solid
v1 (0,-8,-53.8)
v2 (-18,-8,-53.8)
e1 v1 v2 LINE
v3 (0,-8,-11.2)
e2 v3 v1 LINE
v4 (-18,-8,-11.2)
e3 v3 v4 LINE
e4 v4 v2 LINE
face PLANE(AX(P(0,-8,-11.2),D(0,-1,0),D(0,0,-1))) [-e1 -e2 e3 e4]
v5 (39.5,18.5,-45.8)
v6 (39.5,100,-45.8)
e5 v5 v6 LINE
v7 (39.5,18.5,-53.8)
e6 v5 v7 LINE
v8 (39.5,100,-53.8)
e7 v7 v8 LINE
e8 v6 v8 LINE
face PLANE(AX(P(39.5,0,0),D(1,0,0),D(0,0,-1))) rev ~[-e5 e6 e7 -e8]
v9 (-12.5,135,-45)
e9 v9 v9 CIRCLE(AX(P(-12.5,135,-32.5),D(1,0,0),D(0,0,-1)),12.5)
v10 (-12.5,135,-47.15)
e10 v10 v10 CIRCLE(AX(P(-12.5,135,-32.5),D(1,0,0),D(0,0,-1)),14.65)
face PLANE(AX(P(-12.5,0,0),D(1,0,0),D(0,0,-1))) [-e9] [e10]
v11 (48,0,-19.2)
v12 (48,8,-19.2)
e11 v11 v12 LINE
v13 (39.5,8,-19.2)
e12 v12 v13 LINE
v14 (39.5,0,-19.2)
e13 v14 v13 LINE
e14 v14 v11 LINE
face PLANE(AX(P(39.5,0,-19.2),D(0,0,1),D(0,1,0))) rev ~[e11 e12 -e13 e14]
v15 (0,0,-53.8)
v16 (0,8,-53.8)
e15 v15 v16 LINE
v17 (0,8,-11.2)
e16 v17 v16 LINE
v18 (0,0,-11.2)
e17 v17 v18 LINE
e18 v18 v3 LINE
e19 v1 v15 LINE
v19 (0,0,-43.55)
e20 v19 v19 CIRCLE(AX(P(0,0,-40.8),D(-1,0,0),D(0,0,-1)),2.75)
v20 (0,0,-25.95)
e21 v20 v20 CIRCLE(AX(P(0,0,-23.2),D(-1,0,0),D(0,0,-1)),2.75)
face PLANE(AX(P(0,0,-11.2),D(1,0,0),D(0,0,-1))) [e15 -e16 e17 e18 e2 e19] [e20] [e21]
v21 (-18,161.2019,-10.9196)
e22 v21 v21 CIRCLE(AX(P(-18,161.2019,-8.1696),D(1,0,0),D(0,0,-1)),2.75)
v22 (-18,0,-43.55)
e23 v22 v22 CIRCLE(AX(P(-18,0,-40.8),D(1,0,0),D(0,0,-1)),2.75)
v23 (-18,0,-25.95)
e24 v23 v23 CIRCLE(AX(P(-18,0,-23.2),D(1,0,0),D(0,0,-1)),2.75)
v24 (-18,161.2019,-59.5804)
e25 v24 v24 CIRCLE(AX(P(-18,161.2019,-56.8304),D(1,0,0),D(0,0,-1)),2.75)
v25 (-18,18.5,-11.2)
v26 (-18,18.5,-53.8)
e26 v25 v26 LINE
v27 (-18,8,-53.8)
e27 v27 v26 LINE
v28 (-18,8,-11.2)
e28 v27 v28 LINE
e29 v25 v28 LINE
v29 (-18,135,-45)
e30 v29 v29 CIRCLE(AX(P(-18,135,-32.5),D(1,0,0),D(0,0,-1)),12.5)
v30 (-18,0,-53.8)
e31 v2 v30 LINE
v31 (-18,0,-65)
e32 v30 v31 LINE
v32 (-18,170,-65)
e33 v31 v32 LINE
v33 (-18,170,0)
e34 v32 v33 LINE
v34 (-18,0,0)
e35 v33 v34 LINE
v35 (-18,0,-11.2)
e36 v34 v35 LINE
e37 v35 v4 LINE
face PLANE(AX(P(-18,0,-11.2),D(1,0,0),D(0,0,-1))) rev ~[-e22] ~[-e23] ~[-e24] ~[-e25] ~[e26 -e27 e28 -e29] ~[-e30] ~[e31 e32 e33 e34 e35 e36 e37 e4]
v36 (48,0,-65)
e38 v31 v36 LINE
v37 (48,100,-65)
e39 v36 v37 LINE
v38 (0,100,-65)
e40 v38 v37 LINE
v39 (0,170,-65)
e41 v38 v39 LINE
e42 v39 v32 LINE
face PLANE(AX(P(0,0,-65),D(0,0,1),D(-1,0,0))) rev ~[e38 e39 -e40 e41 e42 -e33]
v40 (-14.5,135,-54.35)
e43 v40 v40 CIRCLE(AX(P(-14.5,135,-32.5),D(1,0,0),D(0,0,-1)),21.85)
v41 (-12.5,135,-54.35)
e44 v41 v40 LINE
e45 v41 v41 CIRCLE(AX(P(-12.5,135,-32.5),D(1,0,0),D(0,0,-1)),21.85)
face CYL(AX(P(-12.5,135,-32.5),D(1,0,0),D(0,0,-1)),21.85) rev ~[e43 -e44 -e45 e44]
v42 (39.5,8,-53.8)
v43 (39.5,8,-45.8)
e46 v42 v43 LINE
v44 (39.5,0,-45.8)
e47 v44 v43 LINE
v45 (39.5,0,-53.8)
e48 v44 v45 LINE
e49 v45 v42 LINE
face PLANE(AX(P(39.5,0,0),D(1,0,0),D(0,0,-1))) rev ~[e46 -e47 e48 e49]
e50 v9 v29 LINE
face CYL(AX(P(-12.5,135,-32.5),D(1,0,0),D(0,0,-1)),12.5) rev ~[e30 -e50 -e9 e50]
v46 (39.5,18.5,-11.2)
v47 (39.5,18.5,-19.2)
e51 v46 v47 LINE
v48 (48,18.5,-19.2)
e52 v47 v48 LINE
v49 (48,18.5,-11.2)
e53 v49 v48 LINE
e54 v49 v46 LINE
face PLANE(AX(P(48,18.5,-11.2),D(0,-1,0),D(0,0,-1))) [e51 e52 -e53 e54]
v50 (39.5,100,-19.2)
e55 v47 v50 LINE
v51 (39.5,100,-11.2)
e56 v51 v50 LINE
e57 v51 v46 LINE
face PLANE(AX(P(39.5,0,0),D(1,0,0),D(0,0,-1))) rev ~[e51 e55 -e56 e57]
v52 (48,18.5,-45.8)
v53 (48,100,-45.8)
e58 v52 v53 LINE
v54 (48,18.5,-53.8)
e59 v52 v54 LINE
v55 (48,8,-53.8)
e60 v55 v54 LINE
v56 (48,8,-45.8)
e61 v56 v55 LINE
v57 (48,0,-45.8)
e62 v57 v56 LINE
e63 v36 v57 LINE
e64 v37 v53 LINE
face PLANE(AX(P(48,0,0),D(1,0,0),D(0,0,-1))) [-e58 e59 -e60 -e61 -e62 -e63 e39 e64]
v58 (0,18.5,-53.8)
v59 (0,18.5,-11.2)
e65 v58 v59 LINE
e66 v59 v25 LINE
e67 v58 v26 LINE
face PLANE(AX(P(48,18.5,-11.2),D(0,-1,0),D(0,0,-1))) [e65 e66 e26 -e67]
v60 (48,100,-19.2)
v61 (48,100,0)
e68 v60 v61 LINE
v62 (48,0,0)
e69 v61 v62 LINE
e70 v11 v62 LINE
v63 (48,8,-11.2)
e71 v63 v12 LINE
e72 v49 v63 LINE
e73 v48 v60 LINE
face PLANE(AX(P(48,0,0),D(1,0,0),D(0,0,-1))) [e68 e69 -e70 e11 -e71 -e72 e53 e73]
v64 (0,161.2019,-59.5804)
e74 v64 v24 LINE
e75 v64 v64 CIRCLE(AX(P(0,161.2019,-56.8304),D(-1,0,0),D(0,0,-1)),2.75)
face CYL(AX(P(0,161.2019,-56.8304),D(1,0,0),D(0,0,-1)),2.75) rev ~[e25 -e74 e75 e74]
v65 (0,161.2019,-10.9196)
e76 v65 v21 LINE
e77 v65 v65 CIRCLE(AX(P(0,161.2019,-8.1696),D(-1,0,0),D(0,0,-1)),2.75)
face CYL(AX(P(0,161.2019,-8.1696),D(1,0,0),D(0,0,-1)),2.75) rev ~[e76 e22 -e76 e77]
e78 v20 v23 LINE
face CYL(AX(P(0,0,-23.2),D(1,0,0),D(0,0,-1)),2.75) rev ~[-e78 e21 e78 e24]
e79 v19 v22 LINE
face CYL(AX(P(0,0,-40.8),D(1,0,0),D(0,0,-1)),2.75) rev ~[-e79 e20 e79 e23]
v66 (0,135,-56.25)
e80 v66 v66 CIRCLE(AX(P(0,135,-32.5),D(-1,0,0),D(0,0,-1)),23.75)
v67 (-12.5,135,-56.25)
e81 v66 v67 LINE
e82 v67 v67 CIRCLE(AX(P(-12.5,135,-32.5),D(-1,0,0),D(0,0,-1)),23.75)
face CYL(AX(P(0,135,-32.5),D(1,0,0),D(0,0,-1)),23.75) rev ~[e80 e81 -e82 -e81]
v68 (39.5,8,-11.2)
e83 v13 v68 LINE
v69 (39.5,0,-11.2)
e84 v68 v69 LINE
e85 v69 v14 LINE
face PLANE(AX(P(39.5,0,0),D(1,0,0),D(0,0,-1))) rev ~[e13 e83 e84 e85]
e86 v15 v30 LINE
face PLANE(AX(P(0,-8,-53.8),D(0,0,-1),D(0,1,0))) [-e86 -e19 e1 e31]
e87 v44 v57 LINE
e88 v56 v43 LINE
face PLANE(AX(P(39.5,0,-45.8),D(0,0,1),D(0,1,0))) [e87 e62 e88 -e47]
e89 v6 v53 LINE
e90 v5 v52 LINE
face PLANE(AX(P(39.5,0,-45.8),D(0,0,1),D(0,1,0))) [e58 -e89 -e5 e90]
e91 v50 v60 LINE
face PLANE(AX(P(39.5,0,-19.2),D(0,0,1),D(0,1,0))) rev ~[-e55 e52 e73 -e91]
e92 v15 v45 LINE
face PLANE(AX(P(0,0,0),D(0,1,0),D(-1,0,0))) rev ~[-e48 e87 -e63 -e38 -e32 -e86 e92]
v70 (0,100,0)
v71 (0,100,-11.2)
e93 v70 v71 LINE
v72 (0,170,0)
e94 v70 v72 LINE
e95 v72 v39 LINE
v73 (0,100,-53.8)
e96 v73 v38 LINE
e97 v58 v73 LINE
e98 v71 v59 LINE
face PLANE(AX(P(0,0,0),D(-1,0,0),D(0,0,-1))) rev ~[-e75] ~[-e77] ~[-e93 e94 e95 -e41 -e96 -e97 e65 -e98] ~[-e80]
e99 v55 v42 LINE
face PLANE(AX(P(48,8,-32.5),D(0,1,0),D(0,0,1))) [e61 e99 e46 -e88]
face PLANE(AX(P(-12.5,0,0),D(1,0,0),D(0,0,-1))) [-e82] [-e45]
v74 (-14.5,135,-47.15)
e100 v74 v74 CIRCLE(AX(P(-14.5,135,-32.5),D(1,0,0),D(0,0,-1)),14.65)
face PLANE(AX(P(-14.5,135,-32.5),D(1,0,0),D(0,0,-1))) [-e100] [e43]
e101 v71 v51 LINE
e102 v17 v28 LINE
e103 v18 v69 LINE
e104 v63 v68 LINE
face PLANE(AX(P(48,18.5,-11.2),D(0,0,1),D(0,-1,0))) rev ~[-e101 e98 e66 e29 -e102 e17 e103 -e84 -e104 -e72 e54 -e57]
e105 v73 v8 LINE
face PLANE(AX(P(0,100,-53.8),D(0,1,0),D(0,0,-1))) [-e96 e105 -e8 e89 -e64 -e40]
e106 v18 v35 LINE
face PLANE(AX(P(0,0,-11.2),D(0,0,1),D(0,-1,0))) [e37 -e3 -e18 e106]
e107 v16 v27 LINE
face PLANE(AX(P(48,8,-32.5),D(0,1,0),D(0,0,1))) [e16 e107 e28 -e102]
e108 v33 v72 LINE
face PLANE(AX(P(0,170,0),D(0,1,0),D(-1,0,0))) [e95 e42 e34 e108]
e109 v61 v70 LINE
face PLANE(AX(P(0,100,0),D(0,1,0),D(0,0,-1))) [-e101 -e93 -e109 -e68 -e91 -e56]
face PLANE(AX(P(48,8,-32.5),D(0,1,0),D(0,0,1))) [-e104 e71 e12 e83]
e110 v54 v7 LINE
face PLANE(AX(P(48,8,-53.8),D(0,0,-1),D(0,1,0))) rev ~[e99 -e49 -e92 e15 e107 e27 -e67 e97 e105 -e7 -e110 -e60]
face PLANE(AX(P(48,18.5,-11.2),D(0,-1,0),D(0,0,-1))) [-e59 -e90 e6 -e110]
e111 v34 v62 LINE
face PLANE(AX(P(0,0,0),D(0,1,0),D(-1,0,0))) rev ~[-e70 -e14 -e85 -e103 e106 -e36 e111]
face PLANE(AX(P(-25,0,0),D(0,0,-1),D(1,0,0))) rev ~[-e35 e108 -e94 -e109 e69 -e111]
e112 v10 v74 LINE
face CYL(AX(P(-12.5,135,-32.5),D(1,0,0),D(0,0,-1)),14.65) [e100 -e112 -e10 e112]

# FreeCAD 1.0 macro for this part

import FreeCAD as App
import Part
import Sketcher
from FreeCAD import Vector
Q = App.Units.Quantity

doc = App.newDocument("Part")
body = doc.addObject("PartDesign::Body", "Body")

sketch1 = body.newObject("Sketcher::SketchObject", "Sketch")
sketch1.AttachmentSupport = (doc.getObject("XZ_Plane"), [""])
sketch1.MapMode = "FlatFace"
sketch1.addGeometry(Part.LineSegment(Vector(-25, 0, 0), Vector(0, 0, 0)), False)
sketch1.addGeometry(Part.LineSegment(Vector(0, 0, 0), Vector(0, -65, 0)), False)
sketch1.addGeometry(Part.LineSegment(Vector(0, -65, 0), Vector(-25, -65, 0)), False)
sketch1.addGeometry(Part.LineSegment(Vector(-25, -65, 0), Vector(-25, 0, 0)), False)
sketch1.addConstraint(Sketcher.Constraint("Coincident", 0, 2, 1, 1))
sketch1.addConstraint(Sketcher.Constraint("Coincident", 1, 2, 2, 1))
sketch1.addConstraint(Sketcher.Constraint("Coincident", 2, 2, 3, 1))
sketch1.addConstraint(Sketcher.Constraint("Coincident", 3, 2, 0, 1))
sketch1.addConstraint(Sketcher.Constraint("Horizontal", 0))
sketch1.addConstraint(Sketcher.Constraint("Vertical", 1))
sketch1.addConstraint(Sketcher.Constraint("Horizontal", 2))
sketch1.addConstraint(Sketcher.Constraint("Vertical", 3))
sketch1.addConstraint(Sketcher.Constraint("Coincident", 0, 2, -1, 1))
sketch1.addConstraint(Sketcher.Constraint("DistanceX", 0, 1, 0, 2, Q("25 mm")))
sketch1.addConstraint(Sketcher.Constraint("DistanceY", 1, 2, 1, 1, Q("65 mm")))
pad1 = body.newObject("PartDesign::Pad", "Pad")
pad1.Profile = sketch1
pad1.Length = 170
pad1.Reversed = True

sketch2 = body.newObject("Sketcher::SketchObject", "Sketch001")
sketch2.AttachmentSupport = (doc.getObject("YZ_Plane"), [""])
sketch2.MapMode = "FlatFace"
sketch2.addGeometry(Part.Circle(Vector(135, -32.5, 0), Vector(0, 0, 1), 23.75), False)
sketch2.addConstraint(Sketcher.Constraint("Diameter", 0, Q("47.5 mm")))
sketch2.addConstraint(Sketcher.Constraint("DistanceY", 0, 3, -1, 1, Q("32.5 mm")))
sketch2.addConstraint(Sketcher.Constraint("DistanceX", -1, 1, 0, 3, Q("135 mm")))
pocket1 = body.newObject("PartDesign::Pocket", "Pocket")
pocket1.Profile = sketch2
pocket1.Length = 12.5

sketch3 = body.newObject("Sketcher::SketchObject", "Sketch002")
sketch3.AttachmentSupport = (doc.getObject("YZ_Plane"), [""])
sketch3.MapMode = "FlatFace"
sketch3.addGeometry(Part.LineSegment(Vector(0, 0, 0), Vector(0, -11.2, 0)), False)
sketch3.addGeometry(Part.LineSegment(Vector(0, -11.2, 0), Vector(100, -11.2, 0)), False)
sketch3.addGeometry(Part.LineSegment(Vector(100, -11.2, 0), Vector(100, 0, 0)), False)
sketch3.addGeometry(Part.LineSegment(Vector(100, 0, 0), Vector(0, 0, 0)), False)
sketch3.addGeometry(Part.LineSegment(Vector(0, -53.8, 0), Vector(0, -65, 0)), False)
sketch3.addGeometry(Part.LineSegment(Vector(0, -65, 0), Vector(100, -65, 0)), False)
sketch3.addGeometry(Part.LineSegment(Vector(100, -65, 0), Vector(100, -53.8, 0)), False)
sketch3.addGeometry(Part.LineSegment(Vector(100, -53.8, 0), Vector(0, -53.8, 0)), False)
sketch3.addConstraint(Sketcher.Constraint("Coincident", 0, 2, 1, 1))
sketch3.addConstraint(Sketcher.Constraint("Coincident", 1, 2, 2, 1))
sketch3.addConstraint(Sketcher.Constraint("Coincident", 2, 2, 3, 1))
sketch3.addConstraint(Sketcher.Constraint("Coincident", 3, 2, 0, 1))
sketch3.addConstraint(Sketcher.Constraint("Coincident", 4, 2, 5, 1))
sketch3.addConstraint(Sketcher.Constraint("Coincident", 5, 2, 6, 1))
sketch3.addConstraint(Sketcher.Constraint("Coincident", 6, 2, 7, 1))
sketch3.addConstraint(Sketcher.Constraint("Coincident", 7, 2, 4, 1))
sketch3.addConstraint(Sketcher.Constraint("Vertical", 0))
sketch3.addConstraint(Sketcher.Constraint("Horizontal", 1))
sketch3.addConstraint(Sketcher.Constraint("Vertical", 2))
sketch3.addConstraint(Sketcher.Constraint("Horizontal", 3))
sketch3.addConstraint(Sketcher.Constraint("Vertical", 4))
sketch3.addConstraint(Sketcher.Constraint("Horizontal", 5))
sketch3.addConstraint(Sketcher.Constraint("Vertical", 6))
sketch3.addConstraint(Sketcher.Constraint("Horizontal", 7))
sketch3.addConstraint(Sketcher.Constraint("Coincident", 3, 2, -1, 1))
sketch3.addConstraint(Sketcher.Constraint("PointOnObject", 4, 2, -2))
sketch3.addConstraint(Sketcher.Constraint("Vertical", 2, 2, 5, 2))
sketch3.addConstraint(Sketcher.Constraint("Equal", 2, 4))
sketch3.addConstraint(Sketcher.Constraint("DistanceX", 1, 1, 1, 2, Q("100 mm")))
sketch3.addConstraint(Sketcher.Constraint("DistanceY", 6, 2, 1, 2, Q("42.6 mm")))
sketch3.addConstraint(Sketcher.Constraint("DistanceY", 0, 2, 0, 1, Q("11.2 mm")))
pad2 = body.newObject("PartDesign::Pad", "Pad001")
pad2.Profile = sketch3
pad2.Length = 39.5

sketch4 = body.newObject("Sketcher::SketchObject", "Sketch003")
sketch4.AttachmentSupport = (doc.getObject("YZ_Plane"), [""])
sketch4.MapMode = "FlatFace"
sketch4.AttachmentOffset = App.Placement(Vector(0, 0, 39.5), App.Rotation())
sketch4.addGeometry(Part.LineSegment(Vector(0, -19.2, 0), Vector(100, -19.2, 0)), False)
sketch4.addGeometry(Part.LineSegment(Vector(100, -19.2, 0), Vector(100, 0, 0)), False)
sketch4.addGeometry(Part.LineSegment(Vector(100, 0, 0), Vector(0, 0, 0)), False)
sketch4.addGeometry(Part.LineSegment(Vector(0, 0, 0), Vector(0, -19.2, 0)), False)
sketch4.addGeometry(Part.LineSegment(Vector(0, -65, 0), Vector(100, -65, 0)), False)
sketch4.addGeometry(Part.LineSegment(Vector(100, -65, 0), Vector(100, -45.8, 0)), False)
sketch4.addGeometry(Part.LineSegment(Vector(100, -45.8, 0), Vector(0, -45.8, 0)), False)
sketch4.addGeometry(Part.LineSegment(Vector(0, -45.8, 0), Vector(0, -65, 0)), False)
sketch4.addConstraint(Sketcher.Constraint("Coincident", 0, 2, 1, 1))
sketch4.addConstraint(Sketcher.Constraint("Coincident", 1, 2, 2, 1))
sketch4.addConstraint(Sketcher.Constraint("Coincident", 2, 2, 3, 1))
sketch4.addConstraint(Sketcher.Constraint("Coincident", 3, 2, 0, 1))
sketch4.addConstraint(Sketcher.Constraint("Coincident", 4, 2, 5, 1))
sketch4.addConstraint(Sketcher.Constraint("Coincident", 5, 2, 6, 1))
sketch4.addConstraint(Sketcher.Constraint("Coincident", 6, 2, 7, 1))
sketch4.addConstraint(Sketcher.Constraint("Coincident", 7, 2, 4, 1))
sketch4.addConstraint(Sketcher.Constraint("Horizontal", 0))
sketch4.addConstraint(Sketcher.Constraint("Vertical", 1))
sketch4.addConstraint(Sketcher.Constraint("Horizontal", 2))
sketch4.addConstraint(Sketcher.Constraint("Vertical", 3))
sketch4.addConstraint(Sketcher.Constraint("Horizontal", 4))
sketch4.addConstraint(Sketcher.Constraint("Vertical", 5))
sketch4.addConstraint(Sketcher.Constraint("Horizontal", 6))
sketch4.addConstraint(Sketcher.Constraint("Vertical", 7))
sketch4.addConstraint(Sketcher.Constraint("Coincident", 2, 2, -1, 1))
sketch4.addConstraint(Sketcher.Constraint("PointOnObject", 6, 2, -2))
sketch4.addConstraint(Sketcher.Constraint("Vertical", 1, 2, 4, 2))
sketch4.addConstraint(Sketcher.Constraint("Equal", 3, 5))
sketch4.addConstraint(Sketcher.Constraint("DistanceX", 0, 1, 0, 2, Q("100 mm")))
sketch4.addConstraint(Sketcher.Constraint("DistanceY", 1, 1, 1, 2, Q("19.2 mm")))
sketch4.addConstraint(Sketcher.Constraint("DistanceY", 4, 2, -1, 1, Q("65 mm")))
pad3 = body.newObject("PartDesign::Pad", "Pad002")
pad3.Profile = sketch4
pad3.Length = 8.5

sketch5 = body.newObject("Sketcher::SketchObject", "Sketch004")
sketch5.AttachmentSupport = (doc.getObject("YZ_Plane"), [""])
sketch5.MapMode = "FlatFace"
sketch5.AttachmentOffset = App.Placement(Vector(0, 0, 48), App.Rotation())
sketch5.addGeometry(Part.LineSegment(Vector(18.5, -11.2, 0), Vector(8, -11.2, 0)), False)
sketch5.addGeometry(Part.LineSegment(Vector(8, -11.2, 0), Vector(8, -53.8, 0)), False)
sketch5.addGeometry(Part.LineSegment(Vector(8, -53.8, 0), Vector(18.5, -53.8, 0)), False)
sketch5.addGeometry(Part.LineSegment(Vector(18.5, -53.8, 0), Vector(18.5, -11.2, 0)), False)
sketch5.addConstraint(Sketcher.Constraint("Coincident", 0, 2, 1, 1))
sketch5.addConstraint(Sketcher.Constraint("Coincident", 1, 2, 2, 1))
sketch5.addConstraint(Sketcher.Constraint("Coincident", 2, 2, 3, 1))
sketch5.addConstraint(Sketcher.Constraint("Coincident", 3, 2, 0, 1))
sketch5.addConstraint(Sketcher.Constraint("Horizontal", 0))
sketch5.addConstraint(Sketcher.Constraint("Vertical", 1))
sketch5.addConstraint(Sketcher.Constraint("Horizontal", 2))
sketch5.addConstraint(Sketcher.Constraint("Vertical", 3))
sketch5.addConstraint(Sketcher.Constraint("DistanceX", 0, 2, 0, 1, Q("10.5 mm")))
sketch5.addConstraint(Sketcher.Constraint("DistanceY", 1, 2, 1, 1, Q("42.6 mm")))
sketch5.addConstraint(Sketcher.Constraint("DistanceX", -1, 1, 0, 2, Q("8 mm")))
sketch5.addConstraint(Sketcher.Constraint("DistanceY", 0, 2, -1, 1, Q("11.2 mm")))
pocket2 = body.newObject("PartDesign::Pocket", "Pocket001")
pocket2.Profile = sketch5
pocket2.Type = "ThroughAll"

sketch6 = body.newObject("Sketcher::SketchObject", "Sketch005")
sketch6.AttachmentSupport = (doc.getObject("YZ_Plane"), [""])
sketch6.MapMode = "FlatFace"
sketch6.AttachmentOffset = App.Placement(Vector(0, 0, -12.5), App.Rotation())
sketch6.addGeometry(Part.Circle(Vector(135, -32.5, 0), Vector(0, 0, 1), 12.5), False)
sketch6.addConstraint(Sketcher.Constraint("Diameter", 0, Q("25 mm")))
sketch6.addConstraint(Sketcher.Constraint("DistanceX", -1, 1, 0, 3, Q("135 mm")))
sketch6.addConstraint(Sketcher.Constraint("DistanceY", 0, 3, -1, 1, Q("32.5 mm")))
pocket3 = body.newObject("PartDesign::Pocket", "Pocket002")
pocket3.Profile = sketch6
pocket3.Type = "ThroughAll"

sketch7 = body.newObject("Sketcher::SketchObject", "Sketch006")
sketch7.AttachmentSupport = (doc.getObject("YZ_Plane"), [""])
sketch7.MapMode = "FlatFace"
sketch7.AttachmentOffset = App.Placement(Vector(0, 0, -25), App.Rotation())
sketch7.addGeometry(Part.LineSegment(Vector(0, -65, 0), Vector(0, 0, 0)), False)
sketch7.addGeometry(Part.LineSegment(Vector(0, 0, 0), Vector(170, 0, 0)), False)
sketch7.addGeometry(Part.LineSegment(Vector(170, 0, 0), Vector(170, -65, 0)), False)
sketch7.addGeometry(Part.LineSegment(Vector(170, -65, 0), Vector(0, -65, 0)), False)
sketch7.addConstraint(Sketcher.Constraint("Coincident", 0, 2, 1, 1))
sketch7.addConstraint(Sketcher.Constraint("Coincident", 1, 2, 2, 1))
sketch7.addConstraint(Sketcher.Constraint("Coincident", 2, 2, 3, 1))
sketch7.addConstraint(Sketcher.Constraint("Coincident", 3, 2, 0, 1))
sketch7.addConstraint(Sketcher.Constraint("Vertical", 0))
sketch7.addConstraint(Sketcher.Constraint("Horizontal", 1))
sketch7.addConstraint(Sketcher.Constraint("Vertical", 2))
sketch7.addConstraint(Sketcher.Constraint("Horizontal", 3))
sketch7.addConstraint(Sketcher.Constraint("Coincident", 0, 2, -1, 1))
sketch7.addConstraint(Sketcher.Constraint("DistanceX", 1, 1, 1, 2, Q("170 mm")))
sketch7.addConstraint(Sketcher.Constraint("DistanceY", 0, 1, 0, 2, Q("65 mm")))
pocket4 = body.newObject("PartDesign::Pocket", "Pocket003")
pocket4.Profile = sketch7
pocket4.Length = 7
pocket4.Reversed = True

sketch8 = body.newObject("Sketcher::SketchObject", "Sketch007")
sketch8.AttachmentSupport = (doc.getObject("YZ_Plane"), [""])
sketch8.MapMode = "FlatFace"
sketch8.AttachmentOffset = App.Placement(Vector(0, 0, -12.5), App.Rotation())
sketch8.addGeometry(Part.Circle(Vector(135, -32.5, 0), Vector(0, 0, 1), 21.85), False)
sketch8.addGeometry(Part.Circle(Vector(135, -32.5, 0), Vector(0, 0, 1), 14.65), False)
sketch8.addConstraint(Sketcher.Constraint("Coincident", 1, 3, 0, 3))
sketch8.addConstraint(Sketcher.Constraint("Diameter", 0, Q("43.7 mm")))
sketch8.addConstraint(Sketcher.Constraint("Diameter", 1, Q("29.3 mm")))
sketch8.addConstraint(Sketcher.Constraint("DistanceX", -1, 1, 0, 3, Q("135 mm")))
sketch8.addConstraint(Sketcher.Constraint("DistanceY", 0, 3, -1, 1, Q("32.5 mm")))
pocket5 = body.newObject("PartDesign::Pocket", "Pocket004")
pocket5.Profile = sketch8
pocket5.Length = 2

sketch9 = body.newObject("Sketcher::SketchObject", "Sketch008")
sketch9.AttachmentSupport = (doc.getObject("YZ_Plane"), [""])
sketch9.MapMode = "FlatFace"
sketch9.addGeometry(Part.Circle(Vector(161.2019, -8.1696, 0), Vector(0, 0, 1), 2.75), False)
sketch9.addGeometry(Part.Circle(Vector(161.2019, -56.8304, 0), Vector(0, 0, 1), 2.75), False)
sketch9.addConstraint(Sketcher.Constraint("Equal", 0, 1))
sketch9.addConstraint(Sketcher.Constraint("Vertical", 0, 3, 1, 3))
sketch9.addConstraint(Sketcher.Constraint("Diameter", 0, Q("5.5 mm")))
sketch9.addConstraint(Sketcher.Constraint("DistanceX", -1, 1, 0, 3, Q("161.202 mm")))
sketch9.addConstraint(Sketcher.Constraint("DistanceY", 0, 3, -1, 1, Q("8.1696 mm")))
sketch9.addConstraint(Sketcher.Constraint("DistanceY", 1, 3, -1, 1, Q("56.8304 mm")))
pocket6 = body.newObject("PartDesign::Pocket", "Pocket005")
pocket6.Profile = sketch9
pocket6.Type = "ThroughAll"

sketch10 = body.newObject("Sketcher::SketchObject", "Sketch009")
sketch10.AttachmentSupport = (doc.getObject("YZ_Plane"), [""])
sketch10.MapMode = "FlatFace"
sketch10.addGeometry(Part.LineSegment(Vector(0, -53.8, 0), Vector(0, -11.2, 0)), False)
sketch10.addGeometry(Part.LineSegment(Vector(0, -11.2, 0), Vector(-8, -11.2, 0)), False)
sketch10.addGeometry(Part.LineSegment(Vector(-8, -11.2, 0), Vector(-8, -53.8, 0)), False)
sketch10.addGeometry(Part.LineSegment(Vector(-8, -53.8, 0), Vector(0, -53.8, 0)), False)
sketch10.addConstraint(Sketcher.Constraint("Coincident", 0, 2, 1, 1))
sketch10.addConstraint(Sketcher.Constraint("Coincident", 1, 2, 2, 1))
sketch10.addConstraint(Sketcher.Constraint("Coincident", 2, 2, 3, 1))
sketch10.addConstraint(Sketcher.Constraint("Coincident", 3, 2, 0, 1))
sketch10.addConstraint(Sketcher.Constraint("Vertical", 0))
sketch10.addConstraint(Sketcher.Constraint("Horizontal", 1))
sketch10.addConstraint(Sketcher.Constraint("Vertical", 2))
sketch10.addConstraint(Sketcher.Constraint("Horizontal", 3))
sketch10.addConstraint(Sketcher.Constraint("PointOnObject", 0, 2, -2))
sketch10.addConstraint(Sketcher.Constraint("DistanceX", 1, 2, 1, 1, Q("8 mm")))
sketch10.addConstraint(Sketcher.Constraint("DistanceY", 0, 1, 0, 2, Q("42.6 mm")))
sketch10.addConstraint(Sketcher.Constraint("DistanceY", 0, 2, -1, 1, Q("11.2 mm")))
pad4 = body.newObject("PartDesign::Pad", "Pad003")
pad4.Profile = sketch10
pad4.Length = 18
pad4.Reversed = True

sketch11 = body.newObject("Sketcher::SketchObject", "Sketch010")
sketch11.AttachmentSupport = (doc.getObject("YZ_Plane"), [""])
sketch11.MapMode = "FlatFace"
sketch11.addGeometry(Part.Circle(Vector(0, -23.2, 0), Vector(0, 0, 1), 2.75), False)
sketch11.addGeometry(Part.Circle(Vector(0, -40.8, 0), Vector(0, 0, 1), 2.75), False)
sketch11.addConstraint(Sketcher.Constraint("Equal", 0, 1))
sketch11.addConstraint(Sketcher.Constraint("PointOnObject", 0, 3, -2))
sketch11.addConstraint(Sketcher.Constraint("PointOnObject", 1, 3, -2))
sketch11.addConstraint(Sketcher.Constraint("Diameter", 0, Q("5.5 mm")))
sketch11.addConstraint(Sketcher.Constraint("DistanceY", 0, 3, -1, 1, Q("23.2 mm")))
sketch11.addConstraint(Sketcher.Constraint("DistanceY", 1, 3, -1, 1, Q("40.8 mm")))
pocket7 = body.newObject("PartDesign::Pocket", "Pocket006")
pocket7.Profile = sketch11
pocket7.Type = "ThroughAll"

doc.recompute()
